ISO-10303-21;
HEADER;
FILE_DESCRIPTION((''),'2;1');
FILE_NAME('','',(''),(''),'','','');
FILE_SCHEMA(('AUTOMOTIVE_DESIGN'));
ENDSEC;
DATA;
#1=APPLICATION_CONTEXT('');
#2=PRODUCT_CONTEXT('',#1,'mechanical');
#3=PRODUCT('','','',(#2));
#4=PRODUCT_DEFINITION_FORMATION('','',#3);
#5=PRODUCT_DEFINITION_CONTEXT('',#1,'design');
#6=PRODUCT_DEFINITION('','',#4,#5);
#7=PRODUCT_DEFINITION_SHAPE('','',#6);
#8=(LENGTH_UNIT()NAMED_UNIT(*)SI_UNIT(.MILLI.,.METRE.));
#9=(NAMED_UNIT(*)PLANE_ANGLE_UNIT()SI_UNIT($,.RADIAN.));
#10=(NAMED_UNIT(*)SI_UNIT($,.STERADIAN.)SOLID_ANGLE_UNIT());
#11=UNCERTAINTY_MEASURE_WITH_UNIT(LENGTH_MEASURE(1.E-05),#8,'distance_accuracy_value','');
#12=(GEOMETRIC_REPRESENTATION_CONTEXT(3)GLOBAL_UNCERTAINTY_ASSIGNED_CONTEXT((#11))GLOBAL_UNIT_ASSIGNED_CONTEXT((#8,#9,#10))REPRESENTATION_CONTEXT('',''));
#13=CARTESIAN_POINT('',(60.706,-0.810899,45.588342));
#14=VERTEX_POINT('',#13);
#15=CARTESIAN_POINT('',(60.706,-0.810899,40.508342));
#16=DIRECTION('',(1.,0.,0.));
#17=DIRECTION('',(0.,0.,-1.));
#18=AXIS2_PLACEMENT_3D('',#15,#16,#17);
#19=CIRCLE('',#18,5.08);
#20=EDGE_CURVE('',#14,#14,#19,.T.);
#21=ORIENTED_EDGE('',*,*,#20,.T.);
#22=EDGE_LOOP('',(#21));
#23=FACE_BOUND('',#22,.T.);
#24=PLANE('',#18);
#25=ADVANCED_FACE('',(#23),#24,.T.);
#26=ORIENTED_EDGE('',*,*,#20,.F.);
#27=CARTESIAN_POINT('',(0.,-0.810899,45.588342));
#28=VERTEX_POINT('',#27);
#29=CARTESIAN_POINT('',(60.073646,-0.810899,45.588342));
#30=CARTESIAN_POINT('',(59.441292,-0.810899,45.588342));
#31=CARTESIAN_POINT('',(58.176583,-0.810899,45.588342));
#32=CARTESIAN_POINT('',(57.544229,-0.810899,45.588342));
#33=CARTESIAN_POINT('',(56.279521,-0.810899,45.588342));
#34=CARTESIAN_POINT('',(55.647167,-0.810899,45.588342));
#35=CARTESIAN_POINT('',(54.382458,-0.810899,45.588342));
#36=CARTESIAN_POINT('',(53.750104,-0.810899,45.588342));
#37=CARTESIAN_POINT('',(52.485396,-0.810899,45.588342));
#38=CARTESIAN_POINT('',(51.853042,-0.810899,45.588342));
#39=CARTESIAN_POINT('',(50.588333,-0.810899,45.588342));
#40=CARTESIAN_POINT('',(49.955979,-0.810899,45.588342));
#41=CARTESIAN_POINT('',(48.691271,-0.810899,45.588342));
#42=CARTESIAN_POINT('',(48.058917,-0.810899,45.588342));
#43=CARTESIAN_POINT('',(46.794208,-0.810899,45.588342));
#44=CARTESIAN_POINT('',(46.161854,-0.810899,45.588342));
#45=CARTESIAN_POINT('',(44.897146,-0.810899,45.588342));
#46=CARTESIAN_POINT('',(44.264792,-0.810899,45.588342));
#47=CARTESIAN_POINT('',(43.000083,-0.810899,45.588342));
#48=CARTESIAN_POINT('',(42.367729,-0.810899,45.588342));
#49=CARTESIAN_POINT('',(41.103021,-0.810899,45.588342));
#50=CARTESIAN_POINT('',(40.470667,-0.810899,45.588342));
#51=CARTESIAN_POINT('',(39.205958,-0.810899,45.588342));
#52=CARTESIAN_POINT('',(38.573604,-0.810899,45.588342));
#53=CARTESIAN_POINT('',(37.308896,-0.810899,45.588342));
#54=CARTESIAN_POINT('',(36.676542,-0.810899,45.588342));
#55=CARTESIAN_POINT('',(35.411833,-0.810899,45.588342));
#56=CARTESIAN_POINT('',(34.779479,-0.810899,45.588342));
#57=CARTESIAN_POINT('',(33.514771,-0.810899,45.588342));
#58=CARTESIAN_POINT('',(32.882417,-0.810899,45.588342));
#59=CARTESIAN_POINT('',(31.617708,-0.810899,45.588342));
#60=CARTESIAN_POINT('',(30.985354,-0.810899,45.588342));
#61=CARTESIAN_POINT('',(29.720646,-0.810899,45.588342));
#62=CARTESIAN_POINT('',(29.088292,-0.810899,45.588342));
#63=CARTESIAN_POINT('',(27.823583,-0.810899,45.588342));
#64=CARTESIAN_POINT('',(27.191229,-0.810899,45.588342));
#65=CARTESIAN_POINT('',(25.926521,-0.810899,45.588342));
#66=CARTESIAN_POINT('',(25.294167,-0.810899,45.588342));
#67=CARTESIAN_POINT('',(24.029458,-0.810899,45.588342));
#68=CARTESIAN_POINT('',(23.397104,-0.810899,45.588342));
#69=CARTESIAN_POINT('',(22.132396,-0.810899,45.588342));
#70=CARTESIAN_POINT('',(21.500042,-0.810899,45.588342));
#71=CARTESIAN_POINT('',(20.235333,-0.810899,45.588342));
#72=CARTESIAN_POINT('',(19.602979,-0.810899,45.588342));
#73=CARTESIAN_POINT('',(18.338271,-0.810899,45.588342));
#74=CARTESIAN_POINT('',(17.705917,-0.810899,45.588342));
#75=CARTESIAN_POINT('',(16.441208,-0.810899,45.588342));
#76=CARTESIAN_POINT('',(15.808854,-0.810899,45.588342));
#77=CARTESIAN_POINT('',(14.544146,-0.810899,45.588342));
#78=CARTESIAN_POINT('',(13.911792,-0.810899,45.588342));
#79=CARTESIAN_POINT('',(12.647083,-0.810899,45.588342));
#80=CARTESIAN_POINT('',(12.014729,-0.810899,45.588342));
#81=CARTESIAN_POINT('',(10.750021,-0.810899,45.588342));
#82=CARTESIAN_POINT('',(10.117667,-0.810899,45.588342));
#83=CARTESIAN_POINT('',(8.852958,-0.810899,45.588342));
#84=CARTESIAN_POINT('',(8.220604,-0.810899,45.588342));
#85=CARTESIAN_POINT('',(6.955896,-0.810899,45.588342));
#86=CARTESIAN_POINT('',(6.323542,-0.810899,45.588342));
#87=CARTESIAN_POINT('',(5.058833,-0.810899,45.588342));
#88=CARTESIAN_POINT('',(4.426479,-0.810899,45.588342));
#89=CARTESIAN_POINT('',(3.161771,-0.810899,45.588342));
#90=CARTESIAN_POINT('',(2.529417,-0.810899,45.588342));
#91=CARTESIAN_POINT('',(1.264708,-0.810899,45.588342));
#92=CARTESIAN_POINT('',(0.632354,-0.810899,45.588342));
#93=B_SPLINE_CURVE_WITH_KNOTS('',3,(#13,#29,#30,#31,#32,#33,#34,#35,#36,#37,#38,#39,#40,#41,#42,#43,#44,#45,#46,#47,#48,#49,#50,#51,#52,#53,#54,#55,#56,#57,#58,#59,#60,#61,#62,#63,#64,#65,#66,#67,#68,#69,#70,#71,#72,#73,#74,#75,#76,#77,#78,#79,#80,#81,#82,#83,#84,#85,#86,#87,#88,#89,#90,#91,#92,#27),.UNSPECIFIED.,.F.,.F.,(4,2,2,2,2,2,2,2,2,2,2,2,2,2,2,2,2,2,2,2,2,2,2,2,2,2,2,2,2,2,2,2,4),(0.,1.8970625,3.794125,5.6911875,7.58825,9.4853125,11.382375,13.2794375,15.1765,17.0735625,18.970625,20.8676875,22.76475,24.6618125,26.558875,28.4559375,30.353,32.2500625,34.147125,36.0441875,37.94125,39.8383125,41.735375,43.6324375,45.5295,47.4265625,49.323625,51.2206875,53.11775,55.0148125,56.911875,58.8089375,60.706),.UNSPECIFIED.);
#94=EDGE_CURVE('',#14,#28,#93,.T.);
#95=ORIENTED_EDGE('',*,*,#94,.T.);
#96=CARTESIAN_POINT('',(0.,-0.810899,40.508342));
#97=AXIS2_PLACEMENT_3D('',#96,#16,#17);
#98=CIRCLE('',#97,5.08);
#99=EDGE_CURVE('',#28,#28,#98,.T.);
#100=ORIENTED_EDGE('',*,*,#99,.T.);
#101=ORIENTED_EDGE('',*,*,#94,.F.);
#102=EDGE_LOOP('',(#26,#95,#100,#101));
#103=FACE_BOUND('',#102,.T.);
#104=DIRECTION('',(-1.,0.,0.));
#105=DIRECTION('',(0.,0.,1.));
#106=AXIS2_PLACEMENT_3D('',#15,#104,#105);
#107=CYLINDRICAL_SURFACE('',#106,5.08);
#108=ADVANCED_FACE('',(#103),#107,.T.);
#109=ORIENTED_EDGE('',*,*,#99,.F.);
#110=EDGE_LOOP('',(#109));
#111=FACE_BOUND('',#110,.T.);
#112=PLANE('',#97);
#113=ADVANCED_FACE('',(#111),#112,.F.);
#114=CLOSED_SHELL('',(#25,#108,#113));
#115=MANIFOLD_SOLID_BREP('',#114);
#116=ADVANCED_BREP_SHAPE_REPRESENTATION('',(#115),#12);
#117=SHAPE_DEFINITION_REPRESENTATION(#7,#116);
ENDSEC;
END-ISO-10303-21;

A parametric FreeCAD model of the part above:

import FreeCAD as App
import Part
import Sketcher

V = App.Vector
Q = App.Units.Quantity

doc = App.newDocument("Part")
params = doc.addObject("Spreadsheet::Sheet", "Params")
for row, (alias, value) in enumerate([
    ("sketch1_diameter", "0.4 in"),
    ("pad1_length", "2.39 in"),
], start=1):
    params.set(f"A{row}", alias)
    params.set(f"B{row}", "=" + value)
    params.setAlias(f"B{row}", alias)

body = doc.addObject("PartDesign::Body", "Body")

# Sketch on YZ plane
sketch1 = body.newObject("Sketcher::SketchObject", "Sketch")
sketch1.AttachmentSupport = (doc.getObject("YZ_Plane"), [""])
sketch1.MapMode = "FlatFace"
sketch1.addGeometry(Part.Circle(V(-0.810899, 40.508342, 0), V(0, 0, 1), 5.08), False)
sketch1.addConstraint(Sketcher.Constraint("Diameter", 0, Q("0.4 in")))
sketch1.addConstraint(Sketcher.Constraint("DistanceX", 0, 3, -1, 1, Q("0.810899 mm")))
sketch1.addConstraint(Sketcher.Constraint("DistanceY", -1, 1, 0, 3, Q("40.508342 mm")))
sketch1.setExpression("Constraints[0]", "Params.sketch1_diameter")
pad1 = body.newObject("PartDesign::Pad", "Pad")
pad1.Profile = sketch1
pad1.setExpression("Length", "Params.pad1_length")

doc.recompute()
